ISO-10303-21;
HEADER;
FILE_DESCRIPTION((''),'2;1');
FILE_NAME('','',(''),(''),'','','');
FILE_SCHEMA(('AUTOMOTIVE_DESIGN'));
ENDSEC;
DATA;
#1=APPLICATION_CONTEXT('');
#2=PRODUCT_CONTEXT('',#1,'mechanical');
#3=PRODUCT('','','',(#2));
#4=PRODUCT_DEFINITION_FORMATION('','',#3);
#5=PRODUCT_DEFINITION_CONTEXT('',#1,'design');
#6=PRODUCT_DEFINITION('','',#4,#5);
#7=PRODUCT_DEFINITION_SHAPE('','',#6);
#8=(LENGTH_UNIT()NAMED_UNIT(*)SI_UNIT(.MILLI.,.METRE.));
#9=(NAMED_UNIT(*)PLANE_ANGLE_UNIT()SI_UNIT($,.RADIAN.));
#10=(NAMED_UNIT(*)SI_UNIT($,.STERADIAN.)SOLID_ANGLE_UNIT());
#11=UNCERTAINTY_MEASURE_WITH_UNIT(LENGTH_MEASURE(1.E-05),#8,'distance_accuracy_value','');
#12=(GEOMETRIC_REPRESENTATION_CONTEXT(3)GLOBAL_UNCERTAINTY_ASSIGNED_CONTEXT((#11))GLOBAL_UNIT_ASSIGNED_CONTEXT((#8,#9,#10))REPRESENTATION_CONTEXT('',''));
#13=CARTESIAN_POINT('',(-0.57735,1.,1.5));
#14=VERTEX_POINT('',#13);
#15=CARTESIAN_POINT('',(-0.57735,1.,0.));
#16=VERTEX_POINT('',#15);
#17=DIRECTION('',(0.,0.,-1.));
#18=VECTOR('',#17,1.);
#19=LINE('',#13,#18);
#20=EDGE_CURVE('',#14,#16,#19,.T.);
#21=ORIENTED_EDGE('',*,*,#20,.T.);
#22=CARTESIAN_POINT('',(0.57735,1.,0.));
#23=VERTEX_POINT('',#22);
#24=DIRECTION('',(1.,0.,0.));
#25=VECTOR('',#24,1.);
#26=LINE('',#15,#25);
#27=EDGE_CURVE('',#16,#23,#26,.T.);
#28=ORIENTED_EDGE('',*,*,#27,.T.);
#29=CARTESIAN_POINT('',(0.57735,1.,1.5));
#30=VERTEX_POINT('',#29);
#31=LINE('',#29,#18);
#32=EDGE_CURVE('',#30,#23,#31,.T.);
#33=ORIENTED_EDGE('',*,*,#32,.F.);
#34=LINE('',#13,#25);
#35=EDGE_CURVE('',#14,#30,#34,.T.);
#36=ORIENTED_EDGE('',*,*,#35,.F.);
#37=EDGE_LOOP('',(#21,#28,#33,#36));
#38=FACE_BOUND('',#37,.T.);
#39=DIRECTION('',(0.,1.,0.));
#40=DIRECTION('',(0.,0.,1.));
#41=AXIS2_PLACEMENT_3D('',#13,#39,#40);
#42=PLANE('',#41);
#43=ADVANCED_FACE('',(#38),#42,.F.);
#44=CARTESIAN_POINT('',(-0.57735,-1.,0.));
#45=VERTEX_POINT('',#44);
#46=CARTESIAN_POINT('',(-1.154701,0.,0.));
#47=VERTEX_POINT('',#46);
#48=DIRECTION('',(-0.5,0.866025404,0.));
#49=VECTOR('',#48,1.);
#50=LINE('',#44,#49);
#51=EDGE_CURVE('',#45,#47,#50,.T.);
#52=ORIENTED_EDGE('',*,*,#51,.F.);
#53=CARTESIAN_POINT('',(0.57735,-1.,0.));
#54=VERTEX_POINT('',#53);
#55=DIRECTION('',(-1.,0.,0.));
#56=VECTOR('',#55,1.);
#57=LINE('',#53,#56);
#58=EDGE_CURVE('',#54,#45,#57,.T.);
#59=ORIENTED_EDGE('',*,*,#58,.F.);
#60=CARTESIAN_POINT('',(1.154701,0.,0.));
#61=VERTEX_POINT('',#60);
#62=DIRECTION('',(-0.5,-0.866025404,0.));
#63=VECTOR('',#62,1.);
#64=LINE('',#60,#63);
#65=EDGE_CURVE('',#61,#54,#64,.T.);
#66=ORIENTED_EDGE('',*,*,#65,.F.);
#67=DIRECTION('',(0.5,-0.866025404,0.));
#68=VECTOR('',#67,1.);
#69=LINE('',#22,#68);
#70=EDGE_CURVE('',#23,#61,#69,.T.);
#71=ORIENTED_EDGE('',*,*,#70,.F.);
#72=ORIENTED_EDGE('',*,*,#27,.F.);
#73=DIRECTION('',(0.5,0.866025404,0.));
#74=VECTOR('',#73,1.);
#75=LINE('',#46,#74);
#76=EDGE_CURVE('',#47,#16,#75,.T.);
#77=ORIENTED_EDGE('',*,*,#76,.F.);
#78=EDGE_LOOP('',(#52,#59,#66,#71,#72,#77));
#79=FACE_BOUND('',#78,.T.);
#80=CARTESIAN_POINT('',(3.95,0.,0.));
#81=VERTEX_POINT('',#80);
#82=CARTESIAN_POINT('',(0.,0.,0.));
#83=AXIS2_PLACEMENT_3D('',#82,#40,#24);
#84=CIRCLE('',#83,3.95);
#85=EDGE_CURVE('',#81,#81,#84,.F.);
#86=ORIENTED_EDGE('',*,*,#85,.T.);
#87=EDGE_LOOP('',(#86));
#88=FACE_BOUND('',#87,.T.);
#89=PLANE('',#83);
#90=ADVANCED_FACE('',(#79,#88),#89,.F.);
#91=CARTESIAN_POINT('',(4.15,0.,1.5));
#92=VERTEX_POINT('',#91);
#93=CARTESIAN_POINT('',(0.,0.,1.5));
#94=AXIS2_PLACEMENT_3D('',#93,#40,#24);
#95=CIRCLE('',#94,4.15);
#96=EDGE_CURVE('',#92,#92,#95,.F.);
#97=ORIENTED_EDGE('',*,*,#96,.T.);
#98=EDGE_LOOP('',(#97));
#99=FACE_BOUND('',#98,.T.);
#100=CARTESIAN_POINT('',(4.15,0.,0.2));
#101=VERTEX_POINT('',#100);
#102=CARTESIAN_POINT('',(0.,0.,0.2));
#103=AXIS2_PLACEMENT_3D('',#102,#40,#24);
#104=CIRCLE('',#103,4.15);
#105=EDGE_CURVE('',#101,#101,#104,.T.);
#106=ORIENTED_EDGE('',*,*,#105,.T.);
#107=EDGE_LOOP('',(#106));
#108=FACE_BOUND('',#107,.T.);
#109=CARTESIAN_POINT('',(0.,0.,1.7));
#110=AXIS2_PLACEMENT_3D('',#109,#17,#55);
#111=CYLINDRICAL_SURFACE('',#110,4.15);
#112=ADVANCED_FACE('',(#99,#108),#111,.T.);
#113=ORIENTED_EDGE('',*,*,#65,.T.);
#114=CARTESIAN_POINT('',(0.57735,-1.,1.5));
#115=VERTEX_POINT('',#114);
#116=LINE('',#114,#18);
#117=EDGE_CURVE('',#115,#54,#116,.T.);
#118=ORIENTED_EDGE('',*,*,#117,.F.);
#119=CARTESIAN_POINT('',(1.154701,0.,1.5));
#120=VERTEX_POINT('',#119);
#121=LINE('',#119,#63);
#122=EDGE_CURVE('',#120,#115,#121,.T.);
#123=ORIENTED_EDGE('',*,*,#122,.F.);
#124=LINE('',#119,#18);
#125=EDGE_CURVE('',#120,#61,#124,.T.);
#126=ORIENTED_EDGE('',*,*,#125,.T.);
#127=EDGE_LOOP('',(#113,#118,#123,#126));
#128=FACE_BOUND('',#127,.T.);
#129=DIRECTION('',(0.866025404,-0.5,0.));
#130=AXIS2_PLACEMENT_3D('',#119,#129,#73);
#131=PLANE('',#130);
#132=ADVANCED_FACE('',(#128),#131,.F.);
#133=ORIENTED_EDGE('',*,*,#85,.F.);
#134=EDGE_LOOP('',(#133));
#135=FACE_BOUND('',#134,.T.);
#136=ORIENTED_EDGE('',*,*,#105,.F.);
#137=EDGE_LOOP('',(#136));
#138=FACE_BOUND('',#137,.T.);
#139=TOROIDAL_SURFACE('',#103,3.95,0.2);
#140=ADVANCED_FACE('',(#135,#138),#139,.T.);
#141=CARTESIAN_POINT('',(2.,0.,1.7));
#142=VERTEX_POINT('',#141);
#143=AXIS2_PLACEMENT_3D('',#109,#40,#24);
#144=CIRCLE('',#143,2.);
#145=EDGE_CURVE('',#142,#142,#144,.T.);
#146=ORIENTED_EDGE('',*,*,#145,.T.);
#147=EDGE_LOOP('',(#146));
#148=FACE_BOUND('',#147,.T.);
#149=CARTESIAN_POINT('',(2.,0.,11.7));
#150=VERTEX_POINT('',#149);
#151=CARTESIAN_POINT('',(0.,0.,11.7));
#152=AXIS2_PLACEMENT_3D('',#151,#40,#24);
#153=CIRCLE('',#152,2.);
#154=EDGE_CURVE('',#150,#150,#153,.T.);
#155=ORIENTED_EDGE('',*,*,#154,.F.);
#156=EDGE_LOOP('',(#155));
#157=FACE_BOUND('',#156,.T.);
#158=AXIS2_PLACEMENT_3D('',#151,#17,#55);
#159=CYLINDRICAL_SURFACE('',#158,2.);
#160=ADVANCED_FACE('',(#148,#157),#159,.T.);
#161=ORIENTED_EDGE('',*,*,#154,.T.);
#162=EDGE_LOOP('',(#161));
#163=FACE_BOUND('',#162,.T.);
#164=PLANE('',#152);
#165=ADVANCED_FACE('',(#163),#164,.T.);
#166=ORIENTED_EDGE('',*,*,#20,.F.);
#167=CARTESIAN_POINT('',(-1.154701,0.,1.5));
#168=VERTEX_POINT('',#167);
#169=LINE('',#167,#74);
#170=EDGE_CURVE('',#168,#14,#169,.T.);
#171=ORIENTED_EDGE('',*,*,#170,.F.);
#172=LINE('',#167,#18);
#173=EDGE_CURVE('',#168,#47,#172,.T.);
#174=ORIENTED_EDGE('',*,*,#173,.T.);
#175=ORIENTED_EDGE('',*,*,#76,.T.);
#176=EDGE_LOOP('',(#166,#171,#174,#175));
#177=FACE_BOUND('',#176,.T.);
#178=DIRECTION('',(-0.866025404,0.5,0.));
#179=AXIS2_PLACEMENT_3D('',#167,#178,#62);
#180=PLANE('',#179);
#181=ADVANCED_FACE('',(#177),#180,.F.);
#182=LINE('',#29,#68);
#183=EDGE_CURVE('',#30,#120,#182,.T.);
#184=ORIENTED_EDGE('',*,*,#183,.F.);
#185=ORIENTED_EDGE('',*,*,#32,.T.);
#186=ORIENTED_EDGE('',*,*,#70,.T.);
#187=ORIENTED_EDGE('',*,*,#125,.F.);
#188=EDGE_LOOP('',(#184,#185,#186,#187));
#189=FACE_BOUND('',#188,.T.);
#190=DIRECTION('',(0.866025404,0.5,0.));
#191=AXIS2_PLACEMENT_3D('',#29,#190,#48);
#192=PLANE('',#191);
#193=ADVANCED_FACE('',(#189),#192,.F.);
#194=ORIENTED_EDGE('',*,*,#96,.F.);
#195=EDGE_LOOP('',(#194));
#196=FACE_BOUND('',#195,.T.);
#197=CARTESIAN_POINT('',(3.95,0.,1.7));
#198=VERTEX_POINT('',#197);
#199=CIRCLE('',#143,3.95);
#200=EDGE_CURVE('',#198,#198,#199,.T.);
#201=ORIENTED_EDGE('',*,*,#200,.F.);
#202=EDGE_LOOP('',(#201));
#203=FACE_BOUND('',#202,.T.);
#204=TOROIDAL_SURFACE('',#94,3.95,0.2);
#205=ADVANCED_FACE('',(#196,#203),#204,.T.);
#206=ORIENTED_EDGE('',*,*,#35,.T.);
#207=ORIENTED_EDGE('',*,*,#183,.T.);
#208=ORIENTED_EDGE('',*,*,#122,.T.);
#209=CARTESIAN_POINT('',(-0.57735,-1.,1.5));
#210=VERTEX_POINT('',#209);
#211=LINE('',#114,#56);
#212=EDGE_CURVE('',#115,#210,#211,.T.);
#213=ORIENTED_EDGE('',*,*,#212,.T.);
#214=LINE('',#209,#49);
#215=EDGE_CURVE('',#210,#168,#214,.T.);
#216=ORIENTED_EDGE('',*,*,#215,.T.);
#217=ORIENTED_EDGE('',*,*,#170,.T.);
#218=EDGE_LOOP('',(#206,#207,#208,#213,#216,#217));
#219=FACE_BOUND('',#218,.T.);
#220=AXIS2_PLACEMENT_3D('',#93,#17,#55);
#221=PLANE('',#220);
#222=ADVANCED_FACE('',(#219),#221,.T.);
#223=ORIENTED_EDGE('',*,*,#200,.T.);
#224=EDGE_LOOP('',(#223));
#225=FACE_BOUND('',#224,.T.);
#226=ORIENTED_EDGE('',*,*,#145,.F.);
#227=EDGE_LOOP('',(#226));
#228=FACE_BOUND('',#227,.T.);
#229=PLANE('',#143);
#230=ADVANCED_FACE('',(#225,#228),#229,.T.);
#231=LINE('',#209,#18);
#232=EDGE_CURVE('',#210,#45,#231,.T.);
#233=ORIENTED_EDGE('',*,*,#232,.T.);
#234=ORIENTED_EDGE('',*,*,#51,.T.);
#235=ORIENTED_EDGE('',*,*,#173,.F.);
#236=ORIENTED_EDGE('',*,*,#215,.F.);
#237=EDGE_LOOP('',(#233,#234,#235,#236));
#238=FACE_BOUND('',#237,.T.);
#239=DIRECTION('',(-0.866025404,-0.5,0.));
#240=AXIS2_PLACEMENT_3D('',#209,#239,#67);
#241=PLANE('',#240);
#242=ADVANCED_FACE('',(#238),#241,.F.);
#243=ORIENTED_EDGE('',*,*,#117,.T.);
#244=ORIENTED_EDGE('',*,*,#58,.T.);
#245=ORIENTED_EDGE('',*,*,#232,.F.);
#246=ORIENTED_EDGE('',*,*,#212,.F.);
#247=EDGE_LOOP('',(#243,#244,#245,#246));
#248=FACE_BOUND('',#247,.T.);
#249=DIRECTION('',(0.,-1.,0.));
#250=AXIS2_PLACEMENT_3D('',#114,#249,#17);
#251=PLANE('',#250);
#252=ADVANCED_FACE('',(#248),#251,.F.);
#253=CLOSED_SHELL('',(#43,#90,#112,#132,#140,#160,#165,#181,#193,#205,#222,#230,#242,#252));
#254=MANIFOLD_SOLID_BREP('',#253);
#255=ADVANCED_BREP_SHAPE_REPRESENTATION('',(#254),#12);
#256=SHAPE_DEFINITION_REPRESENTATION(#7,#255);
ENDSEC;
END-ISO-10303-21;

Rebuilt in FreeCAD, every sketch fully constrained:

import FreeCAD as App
import Part
import Sketcher
Q = App.Units.Quantity


def edges_at(feature, points):
    """Names of the edges that pass closest to the given points."""
    edges = feature.Shape.Edges
    near = lambda p: min(range(len(edges)), key=lambda i: edges[i].distToShape(Part.Vertex(*p))[0])
    return sorted({f"Edge{near(p) + 1}" for p in points})


def add_polygon(sketch, points):
    """Adds a closed chain of lines whose ends are joined by coincident constraints."""
    first, n = sketch.GeometryCount, len(points)
    for a, b in zip(points, points[1:] + points[:1]):
        sketch.addGeometry(Part.LineSegment(App.Vector(*a, 0), App.Vector(*b, 0)), False)
    for i in range(n):
        sketch.addConstraint(Sketcher.Constraint("Coincident", first + i, 2, first + (i + 1) % n, 1))

doc = App.newDocument("Part")
body = doc.addObject("PartDesign::Body", "Body")

# Sketch on XY plane
sketch1 = body.newObject("Sketcher::SketchObject", "Sketch")
sketch1.AttachmentSupport = (doc.getObject("XY_Plane"), [""])
sketch1.MapMode = "FlatFace"
sketch1.addGeometry(Part.Circle(App.Vector(0, 0, 0), App.Vector(0, 0, 1), 4.2), False)
sketch1.addConstraint([
    Sketcher.Constraint("Coincident", 0, 3, -1, 1),
    Sketcher.Constraint("Diameter", 0, Q("8.3 mm")),
])
pad1 = body.newObject("PartDesign::Pad", "Pad")
pad1.Profile = sketch1
pad1.Length = 1.7

# Sketch on XY plane
sketch2 = body.newObject("Sketcher::SketchObject", "Sketch001")
sketch2.AttachmentSupport = (doc.getObject("XY_Plane"), [""])
sketch2.MapMode = "FlatFace"
sketch2.AttachmentOffset = App.Placement(App.Vector(0, 0, 1.7), App.Rotation())
sketch2.addGeometry(Part.Circle(App.Vector(0, 0, 0), App.Vector(0, 0, 1), 2), False)
sketch2.addConstraint([
    Sketcher.Constraint("Coincident", 0, 3, -1, 1),
    Sketcher.Constraint("Diameter", 0, Q("4 mm")),
])
pad2 = body.newObject("PartDesign::Pad", "Pad001")
pad2.Profile = sketch2
pad2.Length = 10
doc.recompute()

fillet = body.newObject("PartDesign::Fillet", "Fillet")
fillet.Base = (pad2, edges_at(pad2, [(-4.15, 0, 0), (-4.15, 0, 1.7)]))
fillet.Radius = 0.2

# Sketch on XY plane
sketch3 = body.newObject("Sketcher::SketchObject", "Sketch002")
sketch3.AttachmentSupport = (doc.getObject("XY_Plane"), [""])
sketch3.MapMode = "FlatFace"
add_polygon(sketch3, [(-1.2, 0), (-0.6, 1), (0.6, 1), (1.2, 0), (0.6, -1), (-0.6, -1)])  # lines 0-5
sketch3.addConstraint([
    Sketcher.Constraint("Horizontal", 1),
    Sketcher.Constraint("Horizontal", 4),
    Sketcher.Constraint("Symmetric", 0, 2, 3, 2, -1, 1),
    Sketcher.Constraint("Symmetric", 2, 2, 5, 2, -1, 1),
    Sketcher.Constraint("PointOnObject", 2, 2, -1),
    Sketcher.Constraint("Parallel", 2, 5),
    Sketcher.Constraint("Vertical", 1, 2, 3, 2),
    Sketcher.Constraint("Angle", 0, Q("60 deg")),
    Sketcher.Constraint("DistanceY", -1, 1, 0, 2, Q("1 mm")),
    Sketcher.Constraint("DistanceX", 1, 1, 1, 2, Q("1.154701 mm")),
])
pocket1 = body.newObject("PartDesign::Pocket", "Pocket")
pocket1.Profile = sketch3
pocket1.Length = 1.5
pocket1.Reversed = True

doc.recompute()
